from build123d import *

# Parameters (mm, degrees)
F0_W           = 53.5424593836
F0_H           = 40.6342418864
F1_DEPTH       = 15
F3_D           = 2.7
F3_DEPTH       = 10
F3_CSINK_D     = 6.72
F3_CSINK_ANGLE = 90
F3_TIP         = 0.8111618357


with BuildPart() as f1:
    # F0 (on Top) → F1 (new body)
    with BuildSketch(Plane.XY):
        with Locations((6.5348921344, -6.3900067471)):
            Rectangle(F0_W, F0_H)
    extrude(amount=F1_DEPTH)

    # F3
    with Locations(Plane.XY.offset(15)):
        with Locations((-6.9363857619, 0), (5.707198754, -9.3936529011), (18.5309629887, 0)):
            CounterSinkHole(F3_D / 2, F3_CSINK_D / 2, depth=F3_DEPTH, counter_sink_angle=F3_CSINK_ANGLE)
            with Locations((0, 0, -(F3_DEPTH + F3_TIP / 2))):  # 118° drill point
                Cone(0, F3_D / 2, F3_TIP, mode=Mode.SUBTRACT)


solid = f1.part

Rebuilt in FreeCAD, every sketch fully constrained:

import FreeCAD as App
import Part
import Sketcher

V = App.Vector
Q = App.Units.Quantity

doc = App.newDocument("Part")
body = doc.addObject("PartDesign::Body", "Body")

# Sketch on XY plane
sketch1 = body.newObject("Sketcher::SketchObject", "Sketch")
sketch1.AttachmentSupport = (doc.getObject("XY_Plane"), [""])
sketch1.MapMode = "FlatFace"
sketch1.addGeometry([
    Part.LineSegment(V(-20, 14, 0), V(-20, -27, 0)),
    Part.LineSegment(V(-20, -27, 0), V(33, -27, 0)),
    Part.LineSegment(V(33, -27, 0), V(33, 14, 0)),
    Part.LineSegment(V(33, 14, 0), V(-20, 14, 0)),
], False)
sketch1.addConstraint([
    Sketcher.Constraint("Coincident", 0, 2, 1, 1),
    Sketcher.Constraint("Coincident", 1, 2, 2, 1),
    Sketcher.Constraint("Coincident", 2, 2, 3, 1),
    Sketcher.Constraint("Coincident", 3, 2, 0, 1),
    Sketcher.Constraint("Vertical", 0),
    Sketcher.Constraint("Horizontal", 1),
    Sketcher.Constraint("Vertical", 2),
    Sketcher.Constraint("Horizontal", 3),
    Sketcher.Constraint("DistanceX", 1, 1, 1, 2, Q("53.542459 mm")),
    Sketcher.Constraint("DistanceY", 0, 2, 0, 1, Q("40.634242 mm")),
    Sketcher.Constraint("DistanceX", -1, 1, 1, 2, Q("33.306122 mm")),
    Sketcher.Constraint("DistanceY", 0, 2, -1, 1, Q("26.707128 mm")),
])
pad1 = body.newObject("PartDesign::Pad", "Pad")
pad1.Profile = sketch1
pad1.Length = 15

# Sketch on XY plane
sketch2 = body.newObject("Sketcher::SketchObject", "Sketch001")
sketch2.AttachmentSupport = (doc.getObject("XY_Plane"), [""])
sketch2.MapMode = "FlatFace"
sketch2.AttachmentOffset = App.Placement(V(0, 0, 15), App.Rotation())
sketch2.addGeometry([
    Part.Circle(V(-6.9, 0, 0), V(0, 0, 1), 1.4),
    Part.Circle(V(5.7, -9.4, 0), V(0, 0, 1), 1.4),
    Part.Circle(V(18.5, 0, 0), V(0, 0, 1), 1.4),
], False)
sketch2.addConstraint([
    Sketcher.Constraint("Equal", 0, 1),
    Sketcher.Constraint("Equal", 1, 2),
    Sketcher.Constraint("PointOnObject", 0, 3, -1),
    Sketcher.Constraint("PointOnObject", 2, 3, -1),
    Sketcher.Constraint("Diameter", 0, Q("2.7 mm")),
    Sketcher.Constraint("DistanceX", -1, 1, 1, 3, Q("5.707199 mm")),
    Sketcher.Constraint("DistanceX", 0, 3, 2, 3, Q("25.467349 mm")),
    Sketcher.Constraint("DistanceX", 0, 3, -1, 1, Q("6.936386 mm")),
    Sketcher.Constraint("DistanceY", 1, 3, -1, 1, Q("9.393653 mm")),
])
doc.recompute()
hole = body.newObject("PartDesign::Hole", "Hole")
hole.Profile = sketch2
hole.ThreadType = "None"
hole.Diameter = 2.7
hole.DepthType = "Dimension"
hole.Depth = 10
hole.DrillPoint = "Angled"
hole.DrillPointAngle = 118
hole.HoleCutType = "Countersink"
hole.HoleCutDiameter = 6.72
hole.HoleCutCountersinkAngle = 90

doc.recompute()
